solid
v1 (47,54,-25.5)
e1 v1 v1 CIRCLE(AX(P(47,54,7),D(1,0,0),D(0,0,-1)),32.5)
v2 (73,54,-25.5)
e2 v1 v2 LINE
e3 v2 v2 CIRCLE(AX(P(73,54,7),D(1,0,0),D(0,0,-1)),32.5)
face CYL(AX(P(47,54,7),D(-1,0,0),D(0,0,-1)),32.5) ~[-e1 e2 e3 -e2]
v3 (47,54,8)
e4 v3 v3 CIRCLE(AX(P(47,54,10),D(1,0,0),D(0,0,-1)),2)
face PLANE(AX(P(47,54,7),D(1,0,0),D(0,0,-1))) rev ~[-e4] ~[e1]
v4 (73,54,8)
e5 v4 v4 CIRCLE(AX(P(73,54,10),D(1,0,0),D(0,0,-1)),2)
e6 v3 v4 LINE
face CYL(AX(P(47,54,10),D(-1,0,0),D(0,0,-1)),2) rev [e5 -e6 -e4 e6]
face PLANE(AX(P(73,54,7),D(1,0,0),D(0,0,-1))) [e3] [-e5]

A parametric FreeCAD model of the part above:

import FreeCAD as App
import Part
import Sketcher
from FreeCAD import Vector

doc = App.newDocument("Part")
body = doc.addObject("PartDesign::Body", "Body")

# Sketch on XY plane
sketch1 = body.newObject("Sketcher::SketchObject", "Sketch")
sketch1.AttachmentSupport = (doc.getObject("XY_Plane"), [""])
sketch1.MapMode = "FlatFace"
sketch1.addGeometry(Part.Circle(Vector(0, 0, 0), Vector(0, 0, 1), 2), False)
sketch1.addConstraint([
    Sketcher.Constraint("Coincident", 0, 3, -1, 1),
    Sketcher.Constraint("Diameter", 0, 4.0),
])
pad1 = body.newObject("PartDesign::Pad", "Pad")
pad1.Profile = sketch1
pad1.Length = 26
body2 = doc.addObject("PartDesign::Body", "Body001")

# Sketch on XY plane
sketch2 = body2.newObject("Sketcher::SketchObject", "Sketch001")
sketch2.AttachmentSupport = (doc.getObject("XY_Plane001"), [""])
sketch2.MapMode = "FlatFace"
sketch2.addGeometry(Part.Circle(Vector(3, 0, 0), Vector(0, 0, 1), 32.5), False)
sketch2.addConstraint([
    Sketcher.Constraint("PointOnObject", 0, 3, -1),
    Sketcher.Constraint("Diameter", 0, 65.0),
    Sketcher.Constraint("DistanceX", -1, 1, 0, 3, 3.0),
])
pad2 = body2.newObject("PartDesign::Pad", "Pad001")
pad2.Profile = sketch2
pad2.Length = 26
doc.recompute()

boolean = body2.newObject("PartDesign::Boolean", "Boolean")
boolean.Type = "Cut"
boolean.addObjects([body])
body3 = doc.addObject("PartDesign::Body", "Body002")
doc.recompute()

body2.Placement = App.Placement(Vector(47, 54, 10), App.Rotation(Vector(0, 1, 0), 90))
boolean2 = body3.newObject("PartDesign::Boolean", "Boolean001")
boolean2.Type = "Fuse"
boolean2.addObjects([body2])

doc.recompute()
